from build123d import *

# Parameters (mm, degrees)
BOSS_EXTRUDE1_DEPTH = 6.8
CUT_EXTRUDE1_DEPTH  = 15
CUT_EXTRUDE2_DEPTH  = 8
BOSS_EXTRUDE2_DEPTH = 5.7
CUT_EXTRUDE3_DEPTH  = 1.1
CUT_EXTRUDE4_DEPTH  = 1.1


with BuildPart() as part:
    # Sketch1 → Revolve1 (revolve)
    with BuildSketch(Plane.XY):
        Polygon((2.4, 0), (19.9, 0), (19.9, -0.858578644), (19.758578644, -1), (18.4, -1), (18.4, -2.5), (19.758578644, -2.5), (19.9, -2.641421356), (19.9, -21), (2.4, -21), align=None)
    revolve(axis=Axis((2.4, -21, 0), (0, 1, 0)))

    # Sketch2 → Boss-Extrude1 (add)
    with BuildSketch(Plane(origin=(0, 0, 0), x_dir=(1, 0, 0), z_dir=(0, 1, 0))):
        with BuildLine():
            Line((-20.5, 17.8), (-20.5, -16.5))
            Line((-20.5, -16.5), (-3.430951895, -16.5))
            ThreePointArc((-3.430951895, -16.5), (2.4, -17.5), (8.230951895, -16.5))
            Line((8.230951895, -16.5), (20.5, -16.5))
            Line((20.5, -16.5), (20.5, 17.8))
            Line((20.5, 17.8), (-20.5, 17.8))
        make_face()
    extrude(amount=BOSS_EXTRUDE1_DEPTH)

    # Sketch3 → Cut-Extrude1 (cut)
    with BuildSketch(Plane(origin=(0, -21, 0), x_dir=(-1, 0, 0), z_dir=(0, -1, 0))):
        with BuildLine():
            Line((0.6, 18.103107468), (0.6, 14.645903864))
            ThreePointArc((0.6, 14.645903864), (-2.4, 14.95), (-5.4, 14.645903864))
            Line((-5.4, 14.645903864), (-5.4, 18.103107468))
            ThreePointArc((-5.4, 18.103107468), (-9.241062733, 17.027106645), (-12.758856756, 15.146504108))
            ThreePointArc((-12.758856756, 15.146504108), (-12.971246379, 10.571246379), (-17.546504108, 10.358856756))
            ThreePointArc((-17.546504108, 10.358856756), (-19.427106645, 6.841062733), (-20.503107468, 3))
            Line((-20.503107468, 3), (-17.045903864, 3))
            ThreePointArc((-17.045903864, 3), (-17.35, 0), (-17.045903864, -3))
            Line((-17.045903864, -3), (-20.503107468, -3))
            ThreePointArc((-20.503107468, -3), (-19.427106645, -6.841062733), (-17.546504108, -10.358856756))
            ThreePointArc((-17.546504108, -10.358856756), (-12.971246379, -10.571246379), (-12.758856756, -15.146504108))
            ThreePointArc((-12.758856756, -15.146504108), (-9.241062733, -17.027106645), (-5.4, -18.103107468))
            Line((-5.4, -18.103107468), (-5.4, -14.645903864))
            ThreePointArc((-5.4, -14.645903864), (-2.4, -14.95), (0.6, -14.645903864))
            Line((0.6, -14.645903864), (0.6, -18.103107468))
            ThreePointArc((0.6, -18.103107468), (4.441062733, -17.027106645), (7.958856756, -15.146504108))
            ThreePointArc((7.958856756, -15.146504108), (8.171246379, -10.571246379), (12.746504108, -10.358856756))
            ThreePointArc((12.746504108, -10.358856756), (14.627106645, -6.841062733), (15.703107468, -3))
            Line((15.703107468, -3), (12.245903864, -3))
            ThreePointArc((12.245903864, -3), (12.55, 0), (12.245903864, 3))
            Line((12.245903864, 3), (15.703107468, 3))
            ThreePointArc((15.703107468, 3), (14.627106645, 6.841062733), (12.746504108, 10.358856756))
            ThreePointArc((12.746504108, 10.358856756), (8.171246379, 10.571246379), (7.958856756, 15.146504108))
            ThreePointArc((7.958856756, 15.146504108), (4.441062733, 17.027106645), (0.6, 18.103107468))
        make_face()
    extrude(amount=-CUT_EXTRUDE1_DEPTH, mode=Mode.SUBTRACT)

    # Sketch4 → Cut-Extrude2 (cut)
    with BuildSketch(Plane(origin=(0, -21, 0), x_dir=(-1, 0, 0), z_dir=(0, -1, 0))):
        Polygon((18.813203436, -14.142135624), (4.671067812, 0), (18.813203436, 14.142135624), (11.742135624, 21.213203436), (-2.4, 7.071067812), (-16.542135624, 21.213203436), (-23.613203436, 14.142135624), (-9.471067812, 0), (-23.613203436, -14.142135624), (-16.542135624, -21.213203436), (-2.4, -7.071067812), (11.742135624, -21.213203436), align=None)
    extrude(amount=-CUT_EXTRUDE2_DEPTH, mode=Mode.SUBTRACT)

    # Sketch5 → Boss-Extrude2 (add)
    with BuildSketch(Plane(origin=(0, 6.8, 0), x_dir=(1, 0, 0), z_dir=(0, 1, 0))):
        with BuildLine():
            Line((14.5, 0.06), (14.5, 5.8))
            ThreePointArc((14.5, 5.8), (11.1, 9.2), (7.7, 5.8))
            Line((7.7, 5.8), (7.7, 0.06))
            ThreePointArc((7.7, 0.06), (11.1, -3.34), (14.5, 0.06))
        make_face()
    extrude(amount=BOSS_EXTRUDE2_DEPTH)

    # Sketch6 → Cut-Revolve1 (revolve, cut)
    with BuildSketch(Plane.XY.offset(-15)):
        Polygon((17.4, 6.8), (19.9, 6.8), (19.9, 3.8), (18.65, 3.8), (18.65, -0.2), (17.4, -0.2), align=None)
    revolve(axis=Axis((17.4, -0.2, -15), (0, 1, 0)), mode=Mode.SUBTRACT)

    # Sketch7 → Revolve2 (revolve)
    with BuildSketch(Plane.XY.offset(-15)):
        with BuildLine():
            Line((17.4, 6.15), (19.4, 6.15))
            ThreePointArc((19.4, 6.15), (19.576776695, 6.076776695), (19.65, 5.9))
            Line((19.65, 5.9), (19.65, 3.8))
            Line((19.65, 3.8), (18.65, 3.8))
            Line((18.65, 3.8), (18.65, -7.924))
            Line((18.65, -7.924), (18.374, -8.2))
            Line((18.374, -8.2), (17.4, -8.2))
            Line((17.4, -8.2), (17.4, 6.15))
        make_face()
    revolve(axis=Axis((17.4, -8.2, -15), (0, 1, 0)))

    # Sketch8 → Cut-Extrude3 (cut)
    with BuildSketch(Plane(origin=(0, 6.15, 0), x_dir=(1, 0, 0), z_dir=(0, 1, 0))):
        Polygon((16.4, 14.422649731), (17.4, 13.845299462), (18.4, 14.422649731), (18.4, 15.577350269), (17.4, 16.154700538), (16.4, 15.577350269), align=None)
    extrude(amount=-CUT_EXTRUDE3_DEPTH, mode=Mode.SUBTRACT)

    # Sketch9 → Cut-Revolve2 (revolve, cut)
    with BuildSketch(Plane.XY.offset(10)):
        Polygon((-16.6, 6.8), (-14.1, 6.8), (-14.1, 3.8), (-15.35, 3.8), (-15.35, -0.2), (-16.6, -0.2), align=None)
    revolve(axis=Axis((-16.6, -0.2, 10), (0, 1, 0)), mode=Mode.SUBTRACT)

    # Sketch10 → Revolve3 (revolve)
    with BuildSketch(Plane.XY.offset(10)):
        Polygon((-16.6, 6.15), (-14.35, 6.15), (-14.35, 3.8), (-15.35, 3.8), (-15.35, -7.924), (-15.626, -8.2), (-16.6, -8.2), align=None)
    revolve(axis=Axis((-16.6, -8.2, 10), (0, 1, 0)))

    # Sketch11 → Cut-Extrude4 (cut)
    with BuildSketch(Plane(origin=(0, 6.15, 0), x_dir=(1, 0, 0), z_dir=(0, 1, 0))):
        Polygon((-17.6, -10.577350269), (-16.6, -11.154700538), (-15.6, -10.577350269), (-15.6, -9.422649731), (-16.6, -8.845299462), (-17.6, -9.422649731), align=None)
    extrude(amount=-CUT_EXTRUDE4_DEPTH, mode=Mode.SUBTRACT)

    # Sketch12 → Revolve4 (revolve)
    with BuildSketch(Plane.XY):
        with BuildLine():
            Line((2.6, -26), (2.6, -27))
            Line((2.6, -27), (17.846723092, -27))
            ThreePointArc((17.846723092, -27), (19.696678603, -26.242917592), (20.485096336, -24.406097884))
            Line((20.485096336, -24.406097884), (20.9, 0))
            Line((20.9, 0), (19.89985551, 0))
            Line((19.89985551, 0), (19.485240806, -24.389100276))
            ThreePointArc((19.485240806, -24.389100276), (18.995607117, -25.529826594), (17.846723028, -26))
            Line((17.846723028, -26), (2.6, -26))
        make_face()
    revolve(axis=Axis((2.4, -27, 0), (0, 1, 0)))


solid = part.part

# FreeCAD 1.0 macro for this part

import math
import FreeCAD as App
import Part
import Sketcher

V = App.Vector
Q = App.Units.Quantity

doc = App.newDocument("Part")
body = doc.addObject("PartDesign::Body", "Body")

sketch1 = body.newObject("Sketcher::SketchObject", "Sketch")
sketch1.AttachmentSupport = (doc.getObject("XY_Plane"), [""])
sketch1.MapMode = "FlatFace"
sketch1.addGeometry([
    Part.LineSegment(V(19.9, 0, 0), V(2.4, 0, 0)),
    Part.LineSegment(V(2.4, 0, 0), V(2.4, -21, 0)),
    Part.LineSegment(V(2.4, -21, 0), V(19.9, -21, 0)),
    Part.LineSegment(V(19.9, -21, 0), V(19.9, -2.64, 0)),
    Part.LineSegment(V(19.9, -2.64, 0), V(19.76, -2.5, 0)),
    Part.LineSegment(V(19.76, -2.5, 0), V(18.4, -2.5, 0)),
    Part.LineSegment(V(18.4, -2.5, 0), V(18.4, -1, 0)),
    Part.LineSegment(V(18.4, -1, 0), V(19.76, -1, 0)),
    Part.LineSegment(V(19.76, -1, 0), V(19.9, -0.86, 0)),
    Part.LineSegment(V(19.9, -0.86, 0), V(19.9, 0, 0)),
], False)
sketch1.addGeometry(Part.LineSegment(V(2.4, -21, 0), V(2.4, 0, 0)), True)
sketch1.addConstraint([
    Sketcher.Constraint("Coincident", 0, 2, 1, 1),
    Sketcher.Constraint("Coincident", 1, 2, 2, 1),
    Sketcher.Constraint("Coincident", 2, 2, 3, 1),
    Sketcher.Constraint("Coincident", 3, 2, 4, 1),
    Sketcher.Constraint("Coincident", 4, 2, 5, 1),
    Sketcher.Constraint("Coincident", 5, 2, 6, 1),
    Sketcher.Constraint("Coincident", 6, 2, 7, 1),
    Sketcher.Constraint("Coincident", 7, 2, 8, 1),
    Sketcher.Constraint("Coincident", 8, 2, 9, 1),
    Sketcher.Constraint("Coincident", 9, 2, 0, 1),
    Sketcher.Constraint("Horizontal", 0),
    Sketcher.Constraint("Vertical", 1),
    Sketcher.Constraint("Horizontal", 2),
    Sketcher.Constraint("Vertical", 3),
    Sketcher.Constraint("Horizontal", 5),
    Sketcher.Constraint("Vertical", 6),
    Sketcher.Constraint("Horizontal", 7),
    Sketcher.Constraint("Vertical", 9),
    Sketcher.Constraint("Vertical", 10),
    Sketcher.Constraint("Coincident", 10, 1, 1, 2),
    Sketcher.Constraint("PointOnObject", 0, 2, -1),
    Sketcher.Constraint("PointOnObject", 10, 2, -1),
    Sketcher.Constraint("Perpendicular", 4, 8),
    Sketcher.Constraint("Vertical", 4, 2, 7, 2),
    Sketcher.Constraint("Vertical", 3, 2, 8, 2),
    Sketcher.Constraint("Equal", 4, 8),
    Sketcher.Constraint("DistanceY", 1, 2, 1, 1, 21.0),
    Sketcher.Constraint("DistanceX", 0, 2, 0, 1, 17.5),
    Sketcher.Constraint("DistanceY", 6, 1, 6, 2, 1.5),
    Sketcher.Constraint("DistanceY", 6, 2, -1, 1, 1.0),
    Sketcher.Constraint("DistanceX", 0, 2, 5, 2, 16.0),
    Sketcher.Constraint("Distance", 4, 0.2),
    Sketcher.Constraint("DistanceX", -1, 1, 0, 2, 2.4),
])
revolution = body.newObject("PartDesign::Revolution", "Revolution")
revolution.Profile = sketch1
revolution.ReferenceAxis = (sketch1, ["Axis0"])
revolution.Angle = 360

sketch2 = body.newObject("Sketcher::SketchObject", "Sketch001")
sketch2.AttachmentSupport = (doc.getObject("XZ_Plane"), [""])
sketch2.MapMode = "FlatFace"
sketch2.addGeometry([
    Part.LineSegment(V(-20, -18, 0), V(-20, 16, 0)),
    Part.LineSegment(V(-20, 16, 0), V(-3, 16, 0)),
    Part.ArcOfCircle(Part.Circle(V(2, 0, 0), V(0, 0, 1), 18), math.radians(71), math.radians(109)),
    Part.LineSegment(V(8, 16, 0), V(20, 16, 0)),
    Part.LineSegment(V(20, 16, 0), V(20, -18, 0)),
    Part.LineSegment(V(20, -18, 0), V(-20, -18, 0)),
], False)
sketch2.addConstraint([
    Sketcher.Constraint("Coincident", 0, 2, 1, 1),
    Sketcher.Constraint("Coincident", 1, 2, 2, 2),
    Sketcher.Constraint("Coincident", 2, 1, 3, 1),
    Sketcher.Constraint("Coincident", 3, 2, 4, 1),
    Sketcher.Constraint("Coincident", 4, 2, 5, 1),
    Sketcher.Constraint("Coincident", 5, 2, 0, 1),
    Sketcher.Constraint("Vertical", 0),
    Sketcher.Constraint("Horizontal", 1),
    Sketcher.Constraint("Horizontal", 3),
    Sketcher.Constraint("Vertical", 4),
    Sketcher.Constraint("Horizontal", 5),
    Sketcher.Constraint("Symmetric", 0, 2, 3, 2, -2),
    Sketcher.Constraint("PointOnObject", 2, 3, -1),
    Sketcher.Constraint("Radius", 2, 17.5),
    Sketcher.Constraint("DistanceX", 5, 2, 5, 1, 41.0),
    Sketcher.Constraint("DistanceY", 0, 1, 0, 2, 34.3),
    Sketcher.Constraint("DistanceX", -1, 1, 2, 3, 2.4),
    Sketcher.Constraint("DistanceY", -1, 1, 0, 2, 16.5),
])
pad1 = body.newObject("PartDesign::Pad", "Pad")
pad1.Profile = sketch2
pad1.Length = 6.8
pad1.Reversed = True

sketch3 = body.newObject("Sketcher::SketchObject", "Sketch002")
sketch3.AttachmentSupport = (doc.getObject("XZ_Plane"), [""])
sketch3.MapMode = "FlatFace"
sketch3.AttachmentOffset = App.Placement(V(0, 0, 21), App.Rotation())
sketch3.addGeometry([
    Part.LineSegment(V(-0.6, -18.1, 0), V(-0.6, -14.6, 0)),
    Part.ArcOfCircle(Part.Circle(V(2.4, 0, 0), V(0, 0, 1), 14.9), math.radians(-102), math.radians(-78)),
    Part.LineSegment(V(5.4, -14.6, 0), V(5.4, -18.1, 0)),
    Part.ArcOfCircle(Part.Circle(V(2.4, 0, 0), V(0, 0, 1), 18.3), math.radians(-81), math.radians(-56)),
    Part.ArcOfCircle(Part.Circle(V(15.4, -13, 0), V(0, 0, 1), 3.4), math.radians(50), math.radians(220)),
    Part.ArcOfCircle(Part.Circle(V(2.4, 0, 0), V(0, 0, 1), 18.3), math.radians(-34), math.radians(-9)),
    Part.LineSegment(V(20.5, -3, 0), V(17, -3, 0)),
    Part.ArcOfCircle(Part.Circle(V(2.4, 0, 0), V(0, 0, 1), 14.9), math.radians(-12), math.radians(12)),
    Part.LineSegment(V(17, 3, 0), V(20.5, 3, 0)),
    Part.ArcOfCircle(Part.Circle(V(2.4, 0, 0), V(0, 0, 1), 18.3), math.radians(9), math.radians(34)),
    Part.ArcOfCircle(Part.Circle(V(15.4, 13, 0), V(0, 0, 1), 3.4), math.radians(140), math.radians(310)),
    Part.ArcOfCircle(Part.Circle(V(2.4, 0, 0), V(0, 0, 1), 18.3), math.radians(56), math.radians(81)),
    Part.LineSegment(V(5.4, 18.1, 0), V(5.4, 14.6, 0)),
    Part.ArcOfCircle(Part.Circle(V(2.4, 0, 0), V(0, 0, 1), 14.9), math.radians(78), math.radians(102)),
    Part.LineSegment(V(-0.6, 14.6, 0), V(-0.6, 18.1, 0)),
    Part.ArcOfCircle(Part.Circle(V(2.4, 0, 0), V(0, 0, 1), 18.3), math.radians(99), math.radians(124)),
    Part.ArcOfCircle(Part.Circle(V(-10.6, 13, 0), V(0, 0, 1), 3.4), math.radians(-130), math.radians(40)),
    Part.ArcOfCircle(Part.Circle(V(2.4, 0, 0), V(0, 0, 1), 18.3), math.radians(146), math.radians(171)),
    Part.LineSegment(V(-15.7, 3, 0), V(-12.2, 3, 0)),
    Part.ArcOfCircle(Part.Circle(V(2.4, 0, 0), V(0, 0, 1), 14.9), math.radians(168), math.radians(192)),
    Part.LineSegment(V(-12.2, -3, 0), V(-15.7, -3, 0)),
    Part.ArcOfCircle(Part.Circle(V(2.4, 0, 0), V(0, 0, 1), 18.3), math.radians(-171), math.radians(-146)),
    Part.ArcOfCircle(Part.Circle(V(-10.6, -13, 0), V(0, 0, 1), 3.4), math.radians(-40), math.radians(130)),
    Part.ArcOfCircle(Part.Circle(V(2.4, 0, 0), V(0, 0, 1), 18.3), math.radians(-124), math.radians(-99)),
], False)
sketch3.addConstraint([
    Sketcher.Constraint("Coincident", 0, 2, 1, 1),
    Sketcher.Constraint("Coincident", 1, 2, 2, 1),
    Sketcher.Constraint("Coincident", 2, 2, 3, 1),
    Sketcher.Constraint("Coincident", 3, 2, 4, 2),
    Sketcher.Constraint("Coincident", 4, 1, 5, 1),
    Sketcher.Constraint("Coincident", 5, 2, 6, 1),
    Sketcher.Constraint("Coincident", 6, 2, 7, 1),
    Sketcher.Constraint("Coincident", 7, 2, 8, 1),
    Sketcher.Constraint("Coincident", 8, 2, 9, 1),
    Sketcher.Constraint("Coincident", 9, 2, 10, 2),
    Sketcher.Constraint("Coincident", 10, 1, 11, 1),
    Sketcher.Constraint("Coincident", 11, 2, 12, 1),
    Sketcher.Constraint("Coincident", 12, 2, 13, 1),
    Sketcher.Constraint("Coincident", 13, 2, 14, 1),
    Sketcher.Constraint("Coincident", 14, 2, 15, 1),
    Sketcher.Constraint("Coincident", 15, 2, 16, 2),
    Sketcher.Constraint("Coincident", 16, 1, 17, 1),
    Sketcher.Constraint("Coincident", 17, 2, 18, 1),
    Sketcher.Constraint("Coincident", 18, 2, 19, 1),
    Sketcher.Constraint("Coincident", 19, 2, 20, 1),
    Sketcher.Constraint("Coincident", 20, 2, 21, 1),
    Sketcher.Constraint("Coincident", 21, 2, 22, 2),
    Sketcher.Constraint("Coincident", 22, 1, 23, 1),
    Sketcher.Constraint("Coincident", 23, 2, 0, 1),
    Sketcher.Constraint("Vertical", 0),
    Sketcher.Constraint("Vertical", 2),
    Sketcher.Constraint("Horizontal", 6),
    Sketcher.Constraint("Horizontal", 8),
    Sketcher.Constraint("Vertical", 12),
    Sketcher.Constraint("Vertical", 14),
    Sketcher.Constraint("Horizontal", 18),
    Sketcher.Constraint("Horizontal", 20),
    Sketcher.Constraint("Coincident", 3, 3, 1, 3),
    Sketcher.Constraint("Coincident", 5, 3, 1, 3),
    Sketcher.Constraint("Coincident", 7, 3, 1, 3),
    Sketcher.Constraint("Coincident", 9, 3, 1, 3),
    Sketcher.Constraint("Coincident", 11, 3, 1, 3),
    Sketcher.Constraint("Coincident", 13, 3, 1, 3),
    Sketcher.Constraint("Coincident", 15, 3, 1, 3),
    Sketcher.Constraint("Coincident", 17, 3, 1, 3),
    Sketcher.Constraint("Coincident", 19, 3, 1, 3),
    Sketcher.Constraint("Coincident", 21, 3, 1, 3),
    Sketcher.Constraint("Coincident", 23, 3, 1, 3),
    Sketcher.Constraint("Equal", 3, 5),
    Sketcher.Constraint("Equal", 1, 7),
    Sketcher.Constraint("Equal", 5, 9),
    Sketcher.Constraint("Equal", 4, 10),
    Sketcher.Constraint("Equal", 9, 11),
    Sketcher.Constraint("Equal", 7, 13),
    Sketcher.Constraint("Equal", 11, 15),
    Sketcher.Constraint("Equal", 10, 16),
    Sketcher.Constraint("Equal", 15, 17),
    Sketcher.Constraint("Equal", 13, 19),
    Sketcher.Constraint("Equal", 17, 21),
    Sketcher.Constraint("Equal", 16, 22),
    Sketcher.Constraint("Equal", 21, 23),
    Sketcher.Constraint("Symmetric", 4, 3, 10, 3, -1),
    Sketcher.Constraint("Symmetric", 16, 3, 22, 3, -1),
    Sketcher.Constraint("Symmetric", 6, 2, 7, 2, -1),
    Sketcher.Constraint("Horizontal", 10, 3, 16, 3),
    Sketcher.Constraint("Horizontal", 0, 2, 1, 2),
    Sketcher.Constraint("Horizontal", 12, 2, 13, 2),
    Sketcher.Constraint("Horizontal", 10, 1, 15, 2),
    Sketcher.Constraint("Horizontal", 8, 2, 17, 2),
    Sketcher.Constraint("Horizontal", 6, 2, 19, 2),
    Sketcher.Constraint("Vertical", 2, 2, 11, 2),
    Sketcher.Constraint("Equal", 20, 0),
    Sketcher.Constraint("Radius", 4, 3.4),
    Sketcher.Constraint("Radius", 1, 14.95),
    Sketcher.Constraint("Radius", 3, 18.35),
    Sketcher.Constraint("DistanceY", 5, 2, -1, 1, 3.0),
    Sketcher.Constraint("DistanceX", -1, 1, 1, 3, 2.4),
    Sketcher.Constraint("DistanceY", 2, 2, 4, 3, 5.127698),
    Sketcher.Constraint("DistanceY", 3, 2, 1, 2, 0.5006),
])
pocket1 = body.newObject("PartDesign::Pocket", "Pocket")
pocket1.Profile = sketch3
pocket1.Length = 15

sketch4 = body.newObject("Sketcher::SketchObject", "Sketch003")
sketch4.AttachmentSupport = (doc.getObject("XZ_Plane"), [""])
sketch4.MapMode = "FlatFace"
sketch4.AttachmentOffset = App.Placement(V(0, 0, 21), App.Rotation())
sketch4.addGeometry([
    Part.LineSegment(V(-19, 14, 0), V(-5, 0, 0)),
    Part.LineSegment(V(-5, 0, 0), V(-19, -14, 0)),
    Part.LineSegment(V(-19, -14, 0), V(-12, -21, 0)),
    Part.LineSegment(V(-12, -21, 0), V(2, -7, 0)),
    Part.LineSegment(V(2, -7, 0), V(17, -21, 0)),
    Part.LineSegment(V(17, -21, 0), V(24, -14, 0)),
    Part.LineSegment(V(24, -14, 0), V(9, 0, 0)),
    Part.LineSegment(V(9, 0, 0), V(24, 14, 0)),
    Part.LineSegment(V(24, 14, 0), V(17, 21, 0)),
    Part.LineSegment(V(17, 21, 0), V(2, 7, 0)),
    Part.LineSegment(V(2, 7, 0), V(-12, 21, 0)),
    Part.LineSegment(V(-12, 21, 0), V(-19, 14, 0)),
], False)
sketch4.addConstraint([
    Sketcher.Constraint("Coincident", 0, 2, 1, 1),
    Sketcher.Constraint("Coincident", 1, 2, 2, 1),
    Sketcher.Constraint("Coincident", 2, 2, 3, 1),
    Sketcher.Constraint("Coincident", 3, 2, 4, 1),
    Sketcher.Constraint("Coincident", 4, 2, 5, 1),
    Sketcher.Constraint("Coincident", 5, 2, 6, 1),
    Sketcher.Constraint("Coincident", 6, 2, 7, 1),
    Sketcher.Constraint("Coincident", 7, 2, 8, 1),
    Sketcher.Constraint("Coincident", 8, 2, 9, 1),
    Sketcher.Constraint("Coincident", 9, 2, 10, 1),
    Sketcher.Constraint("Coincident", 10, 2, 11, 1),
    Sketcher.Constraint("Coincident", 11, 2, 0, 1),
    Sketcher.Constraint("Symmetric", 5, 2, 7, 2, -1),
    Sketcher.Constraint("Symmetric", 4, 2, 8, 2, -1),
    Sketcher.Constraint("Symmetric", 3, 2, 9, 2, -1),
    Sketcher.Constraint("Symmetric", 2, 2, 10, 2, -1),
    Sketcher.Constraint("Symmetric", 1, 2, 11, 2, -1),
    Sketcher.Constraint("PointOnObject", 0, 2, -1),
    Sketcher.Constraint("PointOnObject", 6, 2, -1),
    Sketcher.Constraint("Perpendicular", 0, 1),
    Sketcher.Constraint("Perpendicular", 1, 2),
    Sketcher.Constraint("Perpendicular", 2, 3),
    Sketcher.Constraint("Perpendicular", 3, 4),
    Sketcher.Constraint("Perpendicular", 4, 5),
    Sketcher.Constraint("Perpendicular", 5, 6),
    Sketcher.Constraint("Horizontal", 2, 2, 4, 2),
    Sketcher.Constraint("Horizontal", 1, 2, 5, 2),
    Sketcher.Constraint("Equal", 1, 3),
    Sketcher.Constraint("Distance", 0, 20.0),
    Sketcher.Constraint("Distance", 2, 10.0),
    Sketcher.Constraint("DistanceX", -1, 1, 3, 2, 2.4),
])
pocket2 = body.newObject("PartDesign::Pocket", "Pocket001")
pocket2.Profile = sketch4
pocket2.Length = 8

sketch5 = body.newObject("Sketcher::SketchObject", "Sketch004")
sketch5.AttachmentSupport = (doc.getObject("XZ_Plane"), [""])
sketch5.MapMode = "FlatFace"
sketch5.AttachmentOffset = App.Placement(V(0, 0, -6.8), App.Rotation())
sketch5.addGeometry([
    Part.LineSegment(V(14.5, -0.1, 0), V(14.5, -5.8, 0)),
    Part.ArcOfCircle(Part.Circle(V(11.1, -5.8, 0), V(0, 0, 1), 3.4), math.radians(180), math.radians(360)),
    Part.LineSegment(V(7.7, -5.8, 0), V(7.7, -0.1, 0)),
    Part.ArcOfCircle(Part.Circle(V(11.1, -0.1, 0), V(0, 0, 1), 3.4), math.radians(0), math.radians(180)),
], False)
sketch5.addConstraint([
    Sketcher.Constraint("Tangent", 0, 2, 1, 2),
    Sketcher.Constraint("Tangent", 1, 1, 2, 1),
    Sketcher.Constraint("Tangent", 2, 2, 3, 2),
    Sketcher.Constraint("Tangent", 3, 1, 0, 1),
    Sketcher.Constraint("Vertical", 0),
    Sketcher.Constraint("Vertical", 2),
    Sketcher.Constraint("Radius", 1, 3.4),
    Sketcher.Constraint("DistanceY", 0, 2, 0, 1, 5.74),
    Sketcher.Constraint("DistanceX", -1, 1, 1, 3, 11.1),
    Sketcher.Constraint("DistanceY", 1, 3, -1, 1, 5.8),
])
pad2 = body.newObject("PartDesign::Pad", "Pad001")
pad2.Profile = sketch5
pad2.Length = 5.7
pad2.Reversed = True

sketch6 = body.newObject("Sketcher::SketchObject", "Sketch005")
sketch6.AttachmentSupport = (doc.getObject("XY_Plane"), [""])
sketch6.MapMode = "FlatFace"
sketch6.AttachmentOffset = App.Placement(V(0, 0, -15), App.Rotation())
sketch6.addGeometry([
    Part.LineSegment(V(19.9, 6.8, 0), V(17.4, 6.8, 0)),
    Part.LineSegment(V(17.4, 6.8, 0), V(17.4, -0.2, 0)),
    Part.LineSegment(V(17.4, -0.2, 0), V(18.6, -0.2, 0)),
    Part.LineSegment(V(18.6, -0.2, 0), V(18.6, 3.8, 0)),
    Part.LineSegment(V(18.6, 3.8, 0), V(19.9, 3.8, 0)),
    Part.LineSegment(V(19.9, 3.8, 0), V(19.9, 6.8, 0)),
], False)
sketch6.addGeometry(Part.LineSegment(V(17.4, -0.2, 0), V(17.4, 6.8, 0)), True)
sketch6.addConstraint([
    Sketcher.Constraint("Coincident", 0, 2, 1, 1),
    Sketcher.Constraint("Coincident", 1, 2, 2, 1),
    Sketcher.Constraint("Coincident", 2, 2, 3, 1),
    Sketcher.Constraint("Coincident", 3, 2, 4, 1),
    Sketcher.Constraint("Coincident", 4, 2, 5, 1),
    Sketcher.Constraint("Coincident", 5, 2, 0, 1),
    Sketcher.Constraint("Horizontal", 0),
    Sketcher.Constraint("Vertical", 1),
    Sketcher.Constraint("Horizontal", 2),
    Sketcher.Constraint("Vertical", 3),
    Sketcher.Constraint("Horizontal", 4),
    Sketcher.Constraint("Vertical", 5),
    Sketcher.Constraint("Vertical", 6),
    Sketcher.Constraint("Coincident", 6, 1, 1, 2),
    Sketcher.Constraint("Horizontal", 5, 2, 6, 2),
    Sketcher.Constraint("Equal", 2, 4),
    Sketcher.Constraint("DistanceY", 1, 2, 1, 1, 7.0),
    Sketcher.Constraint("DistanceY", 3, 1, 3, 2, 4.0),
    Sketcher.Constraint("DistanceX", 0, 2, 0, 1, 2.5),
    Sketcher.Constraint("DistanceX", -1, 1, 0, 2, 17.4),
    Sketcher.Constraint("DistanceY", -1, 1, 0, 2, 6.8),
])
groove = body.newObject("PartDesign::Groove", "Groove")
groove.Profile = sketch6
groove.ReferenceAxis = (sketch6, ["Axis0"])
groove.Angle = 360

sketch7 = body.newObject("Sketcher::SketchObject", "Sketch006")
sketch7.AttachmentSupport = (doc.getObject("XY_Plane"), [""])
sketch7.MapMode = "FlatFace"
sketch7.AttachmentOffset = App.Placement(V(0, 0, -15), App.Rotation())
sketch7.addGeometry([
    Part.LineSegment(V(19.4, 6.15, 0), V(17.4, 6.15, 0)),
    Part.LineSegment(V(17.4, 6.15, 0), V(17.4, -8.2, 0)),
    Part.LineSegment(V(17.4, -8.2, 0), V(18.37, -8.2, 0)),
    Part.LineSegment(V(18.37, -8.2, 0), V(18.65, -7.92, 0)),
    Part.LineSegment(V(18.65, -7.92, 0), V(18.65, 3.8, 0)),
    Part.LineSegment(V(18.65, 3.8, 0), V(19.65, 3.8, 0)),
    Part.LineSegment(V(19.65, 3.8, 0), V(19.65, 5.9, 0)),
    Part.ArcOfCircle(Part.Circle(V(19.4, 5.9, 0), V(0, 0, 1), 0.25), math.radians(0), math.radians(90)),
], False)
sketch7.addGeometry(Part.LineSegment(V(17.4, -8.2, 0), V(17.4, 6.15, 0)), True)
sketch7.addConstraint([
    Sketcher.Constraint("Coincident", 0, 2, 1, 1),
    Sketcher.Constraint("Coincident", 1, 2, 2, 1),
    Sketcher.Constraint("Coincident", 2, 2, 3, 1),
    Sketcher.Constraint("Coincident", 3, 2, 4, 1),
    Sketcher.Constraint("Coincident", 4, 2, 5, 1),
    Sketcher.Constraint("Coincident", 5, 2, 6, 1),
    Sketcher.Constraint("Tangent", 6, 2, 7, 1),
    Sketcher.Constraint("Tangent", 7, 2, 0, 1),
    Sketcher.Constraint("Horizontal", 0),
    Sketcher.Constraint("Vertical", 1),
    Sketcher.Constraint("Horizontal", 2),
    Sketcher.Constraint("Vertical", 4),
    Sketcher.Constraint("Horizontal", 5),
    Sketcher.Constraint("Vertical", 6),
    Sketcher.Constraint("Vertical", 8),
    Sketcher.Constraint("Coincident", 8, 1, 1, 2),
    Sketcher.Constraint("Horizontal", 7, 2, 8, 2),
    Sketcher.Constraint("DistanceX", 0, 2, 0, 1, 2.0),
    Sketcher.Constraint("DistanceX", 5, 1, 5, 2, 1.0),
    Sketcher.Constraint("Angle", 3, Q("45 deg")),
    Sketcher.Constraint("Radius", 7, 0.25),
    Sketcher.Constraint("DistanceY", 6, 1, 6, 2, 2.1),
    Sketcher.Constraint("DistanceY", 2, 2, 4, 2, 12.0),
    Sketcher.Constraint("DistanceX", -1, 1, 7, 3, 19.4),
    Sketcher.Constraint("DistanceY", -1, 1, 7, 3, 5.9),
    Sketcher.Constraint("DistanceX", 2, 1, 2, 2, 0.974),
])
revolution2 = body.newObject("PartDesign::Revolution", "Revolution001")
revolution2.Profile = sketch7
revolution2.ReferenceAxis = (sketch7, ["Axis0"])
revolution2.Angle = 360

sketch8 = body.newObject("Sketcher::SketchObject", "Sketch007")
sketch8.AttachmentSupport = (doc.getObject("XZ_Plane"), [""])
sketch8.MapMode = "FlatFace"
sketch8.AttachmentOffset = App.Placement(V(0, 0, -6.15), App.Rotation())
sketch8.addGeometry([
    Part.LineSegment(V(16.4, -14.4, 0), V(17.4, -13.8, 0)),
    Part.LineSegment(V(17.4, -13.8, 0), V(18.4, -14.4, 0)),
    Part.LineSegment(V(18.4, -14.4, 0), V(18.4, -15.6, 0)),
    Part.LineSegment(V(18.4, -15.6, 0), V(17.4, -16.2, 0)),
    Part.LineSegment(V(17.4, -16.2, 0), V(16.4, -15.6, 0)),
    Part.LineSegment(V(16.4, -15.6, 0), V(16.4, -14.4, 0)),
], False)
sketch8.addConstraint([
    Sketcher.Constraint("Coincident", 0, 2, 1, 1),
    Sketcher.Constraint("Coincident", 1, 2, 2, 1),
    Sketcher.Constraint("Coincident", 2, 2, 3, 1),
    Sketcher.Constraint("Coincident", 3, 2, 4, 1),
    Sketcher.Constraint("Coincident", 4, 2, 5, 1),
    Sketcher.Constraint("Coincident", 5, 2, 0, 1),
    Sketcher.Constraint("Vertical", 2),
    Sketcher.Constraint("Vertical", 5),
    Sketcher.Constraint("Parallel", 0, 3),
    Sketcher.Constraint("Parallel", 1, 4),
    Sketcher.Constraint("Horizontal", 2, 2, 4, 2),
    Sketcher.Constraint("Horizontal", 1, 2, 5, 2),
    Sketcher.Constraint("Vertical", 0, 2, 3, 2),
    Sketcher.Constraint("Angle", 0, Q("30 deg")),
    Sketcher.Constraint("DistanceX", 0, 2, 1, 2, 1.0),
    Sketcher.Constraint("DistanceX", -1, 1, 0, 2, 17.4),
    Sketcher.Constraint("DistanceY", 2, 2, 2, 1, 1.154701),
    Sketcher.Constraint("DistanceY", 0, 2, -1, 1, 13.845299),
])
pocket3 = body.newObject("PartDesign::Pocket", "Pocket002")
pocket3.Profile = sketch8
pocket3.Length = 1.1
pocket3.Reversed = True

sketch9 = body.newObject("Sketcher::SketchObject", "Sketch008")
sketch9.AttachmentSupport = (doc.getObject("XY_Plane"), [""])
sketch9.MapMode = "FlatFace"
sketch9.AttachmentOffset = App.Placement(V(0, 0, 10), App.Rotation())
sketch9.addGeometry([
    Part.LineSegment(V(-14.1, 6.8, 0), V(-16.6, 6.8, 0)),
    Part.LineSegment(V(-16.6, 6.8, 0), V(-16.6, -0.2, 0)),
    Part.LineSegment(V(-16.6, -0.2, 0), V(-15.3, -0.2, 0)),
    Part.LineSegment(V(-15.3, -0.2, 0), V(-15.3, 3.8, 0)),
    Part.LineSegment(V(-15.3, 3.8, 0), V(-14.1, 3.8, 0)),
    Part.LineSegment(V(-14.1, 3.8, 0), V(-14.1, 6.8, 0)),
], False)
sketch9.addGeometry(Part.LineSegment(V(-16.6, -0.2, 0), V(-16.6, 6.8, 0)), True)
sketch9.addConstraint([
    Sketcher.Constraint("Coincident", 0, 2, 1, 1),
    Sketcher.Constraint("Coincident", 1, 2, 2, 1),
    Sketcher.Constraint("Coincident", 2, 2, 3, 1),
    Sketcher.Constraint("Coincident", 3, 2, 4, 1),
    Sketcher.Constraint("Coincident", 4, 2, 5, 1),
    Sketcher.Constraint("Coincident", 5, 2, 0, 1),
    Sketcher.Constraint("Horizontal", 0),
    Sketcher.Constraint("Vertical", 1),
    Sketcher.Constraint("Horizontal", 2),
    Sketcher.Constraint("Vertical", 3),
    Sketcher.Constraint("Horizontal", 4),
    Sketcher.Constraint("Vertical", 5),
    Sketcher.Constraint("Vertical", 6),
    Sketcher.Constraint("Coincident", 6, 1, 1, 2),
    Sketcher.Constraint("Horizontal", 5, 2, 6, 2),
    Sketcher.Constraint("Equal", 2, 4),
    Sketcher.Constraint("DistanceY", 1, 2, 1, 1, 7.0),
    Sketcher.Constraint("DistanceY", 3, 1, 3, 2, 4.0),
    Sketcher.Constraint("DistanceX", 0, 2, 0, 1, 2.5),
    Sketcher.Constraint("DistanceX", 0, 2, -1, 1, 16.6),
    Sketcher.Constraint("DistanceY", -1, 1, 0, 2, 6.8),
])
groove2 = body.newObject("PartDesign::Groove", "Groove001")
groove2.Profile = sketch9
groove2.ReferenceAxis = (sketch9, ["Axis0"])
groove2.Angle = 360

sketch10 = body.newObject("Sketcher::SketchObject", "Sketch009")
sketch10.AttachmentSupport = (doc.getObject("XY_Plane"), [""])
sketch10.MapMode = "FlatFace"
sketch10.AttachmentOffset = App.Placement(V(0, 0, 10), App.Rotation())
sketch10.addGeometry([
    Part.LineSegment(V(-14.35, 6.15, 0), V(-16.6, 6.15, 0)),
    Part.LineSegment(V(-16.6, 6.15, 0), V(-16.6, -8.2, 0)),
    Part.LineSegment(V(-16.6, -8.2, 0), V(-15.63, -8.2, 0)),
    Part.LineSegment(V(-15.63, -8.2, 0), V(-15.35, -7.92, 0)),
    Part.LineSegment(V(-15.35, -7.92, 0), V(-15.35, 3.8, 0)),
    Part.LineSegment(V(-15.35, 3.8, 0), V(-14.35, 3.8, 0)),
    Part.LineSegment(V(-14.35, 3.8, 0), V(-14.35, 6.15, 0)),
], False)
sketch10.addGeometry(Part.LineSegment(V(-16.6, -8.2, 0), V(-16.6, 6.15, 0)), True)
sketch10.addConstraint([
    Sketcher.Constraint("Coincident", 0, 2, 1, 1),
    Sketcher.Constraint("Coincident", 1, 2, 2, 1),
    Sketcher.Constraint("Coincident", 2, 2, 3, 1),
    Sketcher.Constraint("Coincident", 3, 2, 4, 1),
    Sketcher.Constraint("Coincident", 4, 2, 5, 1),
    Sketcher.Constraint("Coincident", 5, 2, 6, 1),
    Sketcher.Constraint("Coincident", 6, 2, 0, 1),
    Sketcher.Constraint("Horizontal", 0),
    Sketcher.Constraint("Vertical", 1),
    Sketcher.Constraint("Horizontal", 2),
    Sketcher.Constraint("Vertical", 4),
    Sketcher.Constraint("Horizontal", 5),
    Sketcher.Constraint("Vertical", 6),
    Sketcher.Constraint("Vertical", 7),
    Sketcher.Constraint("Coincident", 7, 1, 1, 2),
    Sketcher.Constraint("Horizontal", 6, 2, 7, 2),
    Sketcher.Constraint("DistanceX", 5, 1, 5, 2, 1.0),
    Sketcher.Constraint("Angle", 3, Q("45 deg")),
    Sketcher.Constraint("DistanceY", 2, 2, 4, 2, 12.0),
    Sketcher.Constraint("DistanceX", 0, 2, 0, 1, 2.25),
    Sketcher.Constraint("DistanceY", 1, 2, 1, 1, 14.35),
    Sketcher.Constraint("DistanceX", 0, 2, -1, 1, 16.6),
    Sketcher.Constraint("DistanceY", 1, 2, -1, 1, 8.2),
    Sketcher.Constraint("DistanceX", 2, 1, 2, 2, 0.974),
])
revolution3 = body.newObject("PartDesign::Revolution", "Revolution002")
revolution3.Profile = sketch10
revolution3.ReferenceAxis = (sketch10, ["Axis0"])
revolution3.Angle = 360

sketch11 = body.newObject("Sketcher::SketchObject", "Sketch010")
sketch11.AttachmentSupport = (doc.getObject("XZ_Plane"), [""])
sketch11.MapMode = "FlatFace"
sketch11.AttachmentOffset = App.Placement(V(0, 0, -6.15), App.Rotation())
sketch11.addGeometry([
    Part.LineSegment(V(-17.6, 10.6, 0), V(-16.6, 11.2, 0)),
    Part.LineSegment(V(-16.6, 11.2, 0), V(-15.6, 10.6, 0)),
    Part.LineSegment(V(-15.6, 10.6, 0), V(-15.6, 9.4, 0)),
    Part.LineSegment(V(-15.6, 9.4, 0), V(-16.6, 8.8, 0)),
    Part.LineSegment(V(-16.6, 8.8, 0), V(-17.6, 9.4, 0)),
    Part.LineSegment(V(-17.6, 9.4, 0), V(-17.6, 10.6, 0)),
], False)
sketch11.addConstraint([
    Sketcher.Constraint("Coincident", 0, 2, 1, 1),
    Sketcher.Constraint("Coincident", 1, 2, 2, 1),
    Sketcher.Constraint("Coincident", 2, 2, 3, 1),
    Sketcher.Constraint("Coincident", 3, 2, 4, 1),
    Sketcher.Constraint("Coincident", 4, 2, 5, 1),
    Sketcher.Constraint("Coincident", 5, 2, 0, 1),
    Sketcher.Constraint("Vertical", 2),
    Sketcher.Constraint("Vertical", 5),
    Sketcher.Constraint("Parallel", 0, 3),
    Sketcher.Constraint("Parallel", 1, 4),
    Sketcher.Constraint("Horizontal", 2, 2, 4, 2),
    Sketcher.Constraint("Horizontal", 1, 2, 5, 2),
    Sketcher.Constraint("Vertical", 0, 2, 3, 2),
    Sketcher.Constraint("Angle", 0, Q("30 deg")),
    Sketcher.Constraint("DistanceX", 0, 2, 1, 2, 1.0),
    Sketcher.Constraint("DistanceX", 0, 2, -1, 1, 16.6),
    Sketcher.Constraint("DistanceY", 2, 2, 2, 1, 1.154701),
    Sketcher.Constraint("DistanceY", -1, 1, 0, 2, 11.154701),
])
pocket4 = body.newObject("PartDesign::Pocket", "Pocket003")
pocket4.Profile = sketch11
pocket4.Length = 1.1
pocket4.Reversed = True

sketch12 = body.newObject("Sketcher::SketchObject", "Sketch011")
sketch12.AttachmentSupport = (doc.getObject("XY_Plane"), [""])
sketch12.MapMode = "FlatFace"
sketch12.addGeometry([
    Part.LineSegment(V(2.6, -26, 0), V(2.6, -27, 0)),
    Part.LineSegment(V(2.6, -27, 0), V(17.8, -27, 0)),
    Part.ArcOfCircle(Part.Circle(V(17.8, -24.4, 0), V(0, 0, 1), 2.6), math.radians(-90), math.radians(-1)),
    Part.LineSegment(V(20.5, -24.4, 0), V(20.9, 0, 0)),
    Part.LineSegment(V(20.9, 0, 0), V(19.9, 0, 0)),
    Part.LineSegment(V(19.9, 0, 0), V(19.5, -24.4, 0)),
    Part.ArcOfCircle(Part.Circle(V(17.8, -24.4, 0), V(0, 0, 1), 1.6), math.radians(-90), math.radians(-1)),
    Part.LineSegment(V(17.8, -26, 0), V(2.6, -26, 0)),
], False)
sketch12.addGeometry(Part.LineSegment(V(2.4, -27, 0), V(2.4, 0, 0)), True)
sketch12.addConstraint([
    Sketcher.Constraint("Coincident", 0, 2, 1, 1),
    Sketcher.Constraint("Tangent", 1, 2, 2, 1),
    Sketcher.Constraint("Tangent", 2, 2, 3, 1),
    Sketcher.Constraint("Coincident", 3, 2, 4, 1),
    Sketcher.Constraint("Coincident", 4, 2, 5, 1),
    Sketcher.Constraint("Tangent", 5, 2, 6, 2),
    Sketcher.Constraint("Tangent", 6, 1, 7, 1),
    Sketcher.Constraint("Coincident", 7, 2, 0, 1),
    Sketcher.Constraint("Vertical", 0),
    Sketcher.Constraint("Horizontal", 1),
    Sketcher.Constraint("Horizontal", 4),
    Sketcher.Constraint("Horizontal", 7),
    Sketcher.Constraint("Vertical", 8),
    Sketcher.Constraint("Coincident", 6, 3, 2, 3),
    Sketcher.Constraint("PointOnObject", 3, 2, -1),
    Sketcher.Constraint("PointOnObject", 8, 2, -1),
    Sketcher.Constraint("Parallel", 3, 5),
    Sketcher.Constraint("Horizontal", 1, 2, 8, 1),
    Sketcher.Constraint("DistanceY", 0, 2, 0, 1, 1.0),
    Sketcher.Constraint("DistanceY", 8, 1, 8, 2, 27.0),
    Sketcher.Constraint("DistanceX", -1, 1, 0, 2, 2.6),
    Sketcher.Constraint("DistanceX", -1, 1, 3, 2, 20.9),
    Sketcher.Constraint("DistanceX", -1, 1, 8, 1, 2.4),
    Sketcher.Constraint("Radius", 2, 2.638754),
    Sketcher.Constraint("DistanceY", 5, 2, -1, 1, 24.3891),
])
revolution4 = body.newObject("PartDesign::Revolution", "Revolution003")
revolution4.Profile = sketch12
revolution4.ReferenceAxis = (sketch12, ["Axis0"])
revolution4.Angle = 360

doc.recompute()
